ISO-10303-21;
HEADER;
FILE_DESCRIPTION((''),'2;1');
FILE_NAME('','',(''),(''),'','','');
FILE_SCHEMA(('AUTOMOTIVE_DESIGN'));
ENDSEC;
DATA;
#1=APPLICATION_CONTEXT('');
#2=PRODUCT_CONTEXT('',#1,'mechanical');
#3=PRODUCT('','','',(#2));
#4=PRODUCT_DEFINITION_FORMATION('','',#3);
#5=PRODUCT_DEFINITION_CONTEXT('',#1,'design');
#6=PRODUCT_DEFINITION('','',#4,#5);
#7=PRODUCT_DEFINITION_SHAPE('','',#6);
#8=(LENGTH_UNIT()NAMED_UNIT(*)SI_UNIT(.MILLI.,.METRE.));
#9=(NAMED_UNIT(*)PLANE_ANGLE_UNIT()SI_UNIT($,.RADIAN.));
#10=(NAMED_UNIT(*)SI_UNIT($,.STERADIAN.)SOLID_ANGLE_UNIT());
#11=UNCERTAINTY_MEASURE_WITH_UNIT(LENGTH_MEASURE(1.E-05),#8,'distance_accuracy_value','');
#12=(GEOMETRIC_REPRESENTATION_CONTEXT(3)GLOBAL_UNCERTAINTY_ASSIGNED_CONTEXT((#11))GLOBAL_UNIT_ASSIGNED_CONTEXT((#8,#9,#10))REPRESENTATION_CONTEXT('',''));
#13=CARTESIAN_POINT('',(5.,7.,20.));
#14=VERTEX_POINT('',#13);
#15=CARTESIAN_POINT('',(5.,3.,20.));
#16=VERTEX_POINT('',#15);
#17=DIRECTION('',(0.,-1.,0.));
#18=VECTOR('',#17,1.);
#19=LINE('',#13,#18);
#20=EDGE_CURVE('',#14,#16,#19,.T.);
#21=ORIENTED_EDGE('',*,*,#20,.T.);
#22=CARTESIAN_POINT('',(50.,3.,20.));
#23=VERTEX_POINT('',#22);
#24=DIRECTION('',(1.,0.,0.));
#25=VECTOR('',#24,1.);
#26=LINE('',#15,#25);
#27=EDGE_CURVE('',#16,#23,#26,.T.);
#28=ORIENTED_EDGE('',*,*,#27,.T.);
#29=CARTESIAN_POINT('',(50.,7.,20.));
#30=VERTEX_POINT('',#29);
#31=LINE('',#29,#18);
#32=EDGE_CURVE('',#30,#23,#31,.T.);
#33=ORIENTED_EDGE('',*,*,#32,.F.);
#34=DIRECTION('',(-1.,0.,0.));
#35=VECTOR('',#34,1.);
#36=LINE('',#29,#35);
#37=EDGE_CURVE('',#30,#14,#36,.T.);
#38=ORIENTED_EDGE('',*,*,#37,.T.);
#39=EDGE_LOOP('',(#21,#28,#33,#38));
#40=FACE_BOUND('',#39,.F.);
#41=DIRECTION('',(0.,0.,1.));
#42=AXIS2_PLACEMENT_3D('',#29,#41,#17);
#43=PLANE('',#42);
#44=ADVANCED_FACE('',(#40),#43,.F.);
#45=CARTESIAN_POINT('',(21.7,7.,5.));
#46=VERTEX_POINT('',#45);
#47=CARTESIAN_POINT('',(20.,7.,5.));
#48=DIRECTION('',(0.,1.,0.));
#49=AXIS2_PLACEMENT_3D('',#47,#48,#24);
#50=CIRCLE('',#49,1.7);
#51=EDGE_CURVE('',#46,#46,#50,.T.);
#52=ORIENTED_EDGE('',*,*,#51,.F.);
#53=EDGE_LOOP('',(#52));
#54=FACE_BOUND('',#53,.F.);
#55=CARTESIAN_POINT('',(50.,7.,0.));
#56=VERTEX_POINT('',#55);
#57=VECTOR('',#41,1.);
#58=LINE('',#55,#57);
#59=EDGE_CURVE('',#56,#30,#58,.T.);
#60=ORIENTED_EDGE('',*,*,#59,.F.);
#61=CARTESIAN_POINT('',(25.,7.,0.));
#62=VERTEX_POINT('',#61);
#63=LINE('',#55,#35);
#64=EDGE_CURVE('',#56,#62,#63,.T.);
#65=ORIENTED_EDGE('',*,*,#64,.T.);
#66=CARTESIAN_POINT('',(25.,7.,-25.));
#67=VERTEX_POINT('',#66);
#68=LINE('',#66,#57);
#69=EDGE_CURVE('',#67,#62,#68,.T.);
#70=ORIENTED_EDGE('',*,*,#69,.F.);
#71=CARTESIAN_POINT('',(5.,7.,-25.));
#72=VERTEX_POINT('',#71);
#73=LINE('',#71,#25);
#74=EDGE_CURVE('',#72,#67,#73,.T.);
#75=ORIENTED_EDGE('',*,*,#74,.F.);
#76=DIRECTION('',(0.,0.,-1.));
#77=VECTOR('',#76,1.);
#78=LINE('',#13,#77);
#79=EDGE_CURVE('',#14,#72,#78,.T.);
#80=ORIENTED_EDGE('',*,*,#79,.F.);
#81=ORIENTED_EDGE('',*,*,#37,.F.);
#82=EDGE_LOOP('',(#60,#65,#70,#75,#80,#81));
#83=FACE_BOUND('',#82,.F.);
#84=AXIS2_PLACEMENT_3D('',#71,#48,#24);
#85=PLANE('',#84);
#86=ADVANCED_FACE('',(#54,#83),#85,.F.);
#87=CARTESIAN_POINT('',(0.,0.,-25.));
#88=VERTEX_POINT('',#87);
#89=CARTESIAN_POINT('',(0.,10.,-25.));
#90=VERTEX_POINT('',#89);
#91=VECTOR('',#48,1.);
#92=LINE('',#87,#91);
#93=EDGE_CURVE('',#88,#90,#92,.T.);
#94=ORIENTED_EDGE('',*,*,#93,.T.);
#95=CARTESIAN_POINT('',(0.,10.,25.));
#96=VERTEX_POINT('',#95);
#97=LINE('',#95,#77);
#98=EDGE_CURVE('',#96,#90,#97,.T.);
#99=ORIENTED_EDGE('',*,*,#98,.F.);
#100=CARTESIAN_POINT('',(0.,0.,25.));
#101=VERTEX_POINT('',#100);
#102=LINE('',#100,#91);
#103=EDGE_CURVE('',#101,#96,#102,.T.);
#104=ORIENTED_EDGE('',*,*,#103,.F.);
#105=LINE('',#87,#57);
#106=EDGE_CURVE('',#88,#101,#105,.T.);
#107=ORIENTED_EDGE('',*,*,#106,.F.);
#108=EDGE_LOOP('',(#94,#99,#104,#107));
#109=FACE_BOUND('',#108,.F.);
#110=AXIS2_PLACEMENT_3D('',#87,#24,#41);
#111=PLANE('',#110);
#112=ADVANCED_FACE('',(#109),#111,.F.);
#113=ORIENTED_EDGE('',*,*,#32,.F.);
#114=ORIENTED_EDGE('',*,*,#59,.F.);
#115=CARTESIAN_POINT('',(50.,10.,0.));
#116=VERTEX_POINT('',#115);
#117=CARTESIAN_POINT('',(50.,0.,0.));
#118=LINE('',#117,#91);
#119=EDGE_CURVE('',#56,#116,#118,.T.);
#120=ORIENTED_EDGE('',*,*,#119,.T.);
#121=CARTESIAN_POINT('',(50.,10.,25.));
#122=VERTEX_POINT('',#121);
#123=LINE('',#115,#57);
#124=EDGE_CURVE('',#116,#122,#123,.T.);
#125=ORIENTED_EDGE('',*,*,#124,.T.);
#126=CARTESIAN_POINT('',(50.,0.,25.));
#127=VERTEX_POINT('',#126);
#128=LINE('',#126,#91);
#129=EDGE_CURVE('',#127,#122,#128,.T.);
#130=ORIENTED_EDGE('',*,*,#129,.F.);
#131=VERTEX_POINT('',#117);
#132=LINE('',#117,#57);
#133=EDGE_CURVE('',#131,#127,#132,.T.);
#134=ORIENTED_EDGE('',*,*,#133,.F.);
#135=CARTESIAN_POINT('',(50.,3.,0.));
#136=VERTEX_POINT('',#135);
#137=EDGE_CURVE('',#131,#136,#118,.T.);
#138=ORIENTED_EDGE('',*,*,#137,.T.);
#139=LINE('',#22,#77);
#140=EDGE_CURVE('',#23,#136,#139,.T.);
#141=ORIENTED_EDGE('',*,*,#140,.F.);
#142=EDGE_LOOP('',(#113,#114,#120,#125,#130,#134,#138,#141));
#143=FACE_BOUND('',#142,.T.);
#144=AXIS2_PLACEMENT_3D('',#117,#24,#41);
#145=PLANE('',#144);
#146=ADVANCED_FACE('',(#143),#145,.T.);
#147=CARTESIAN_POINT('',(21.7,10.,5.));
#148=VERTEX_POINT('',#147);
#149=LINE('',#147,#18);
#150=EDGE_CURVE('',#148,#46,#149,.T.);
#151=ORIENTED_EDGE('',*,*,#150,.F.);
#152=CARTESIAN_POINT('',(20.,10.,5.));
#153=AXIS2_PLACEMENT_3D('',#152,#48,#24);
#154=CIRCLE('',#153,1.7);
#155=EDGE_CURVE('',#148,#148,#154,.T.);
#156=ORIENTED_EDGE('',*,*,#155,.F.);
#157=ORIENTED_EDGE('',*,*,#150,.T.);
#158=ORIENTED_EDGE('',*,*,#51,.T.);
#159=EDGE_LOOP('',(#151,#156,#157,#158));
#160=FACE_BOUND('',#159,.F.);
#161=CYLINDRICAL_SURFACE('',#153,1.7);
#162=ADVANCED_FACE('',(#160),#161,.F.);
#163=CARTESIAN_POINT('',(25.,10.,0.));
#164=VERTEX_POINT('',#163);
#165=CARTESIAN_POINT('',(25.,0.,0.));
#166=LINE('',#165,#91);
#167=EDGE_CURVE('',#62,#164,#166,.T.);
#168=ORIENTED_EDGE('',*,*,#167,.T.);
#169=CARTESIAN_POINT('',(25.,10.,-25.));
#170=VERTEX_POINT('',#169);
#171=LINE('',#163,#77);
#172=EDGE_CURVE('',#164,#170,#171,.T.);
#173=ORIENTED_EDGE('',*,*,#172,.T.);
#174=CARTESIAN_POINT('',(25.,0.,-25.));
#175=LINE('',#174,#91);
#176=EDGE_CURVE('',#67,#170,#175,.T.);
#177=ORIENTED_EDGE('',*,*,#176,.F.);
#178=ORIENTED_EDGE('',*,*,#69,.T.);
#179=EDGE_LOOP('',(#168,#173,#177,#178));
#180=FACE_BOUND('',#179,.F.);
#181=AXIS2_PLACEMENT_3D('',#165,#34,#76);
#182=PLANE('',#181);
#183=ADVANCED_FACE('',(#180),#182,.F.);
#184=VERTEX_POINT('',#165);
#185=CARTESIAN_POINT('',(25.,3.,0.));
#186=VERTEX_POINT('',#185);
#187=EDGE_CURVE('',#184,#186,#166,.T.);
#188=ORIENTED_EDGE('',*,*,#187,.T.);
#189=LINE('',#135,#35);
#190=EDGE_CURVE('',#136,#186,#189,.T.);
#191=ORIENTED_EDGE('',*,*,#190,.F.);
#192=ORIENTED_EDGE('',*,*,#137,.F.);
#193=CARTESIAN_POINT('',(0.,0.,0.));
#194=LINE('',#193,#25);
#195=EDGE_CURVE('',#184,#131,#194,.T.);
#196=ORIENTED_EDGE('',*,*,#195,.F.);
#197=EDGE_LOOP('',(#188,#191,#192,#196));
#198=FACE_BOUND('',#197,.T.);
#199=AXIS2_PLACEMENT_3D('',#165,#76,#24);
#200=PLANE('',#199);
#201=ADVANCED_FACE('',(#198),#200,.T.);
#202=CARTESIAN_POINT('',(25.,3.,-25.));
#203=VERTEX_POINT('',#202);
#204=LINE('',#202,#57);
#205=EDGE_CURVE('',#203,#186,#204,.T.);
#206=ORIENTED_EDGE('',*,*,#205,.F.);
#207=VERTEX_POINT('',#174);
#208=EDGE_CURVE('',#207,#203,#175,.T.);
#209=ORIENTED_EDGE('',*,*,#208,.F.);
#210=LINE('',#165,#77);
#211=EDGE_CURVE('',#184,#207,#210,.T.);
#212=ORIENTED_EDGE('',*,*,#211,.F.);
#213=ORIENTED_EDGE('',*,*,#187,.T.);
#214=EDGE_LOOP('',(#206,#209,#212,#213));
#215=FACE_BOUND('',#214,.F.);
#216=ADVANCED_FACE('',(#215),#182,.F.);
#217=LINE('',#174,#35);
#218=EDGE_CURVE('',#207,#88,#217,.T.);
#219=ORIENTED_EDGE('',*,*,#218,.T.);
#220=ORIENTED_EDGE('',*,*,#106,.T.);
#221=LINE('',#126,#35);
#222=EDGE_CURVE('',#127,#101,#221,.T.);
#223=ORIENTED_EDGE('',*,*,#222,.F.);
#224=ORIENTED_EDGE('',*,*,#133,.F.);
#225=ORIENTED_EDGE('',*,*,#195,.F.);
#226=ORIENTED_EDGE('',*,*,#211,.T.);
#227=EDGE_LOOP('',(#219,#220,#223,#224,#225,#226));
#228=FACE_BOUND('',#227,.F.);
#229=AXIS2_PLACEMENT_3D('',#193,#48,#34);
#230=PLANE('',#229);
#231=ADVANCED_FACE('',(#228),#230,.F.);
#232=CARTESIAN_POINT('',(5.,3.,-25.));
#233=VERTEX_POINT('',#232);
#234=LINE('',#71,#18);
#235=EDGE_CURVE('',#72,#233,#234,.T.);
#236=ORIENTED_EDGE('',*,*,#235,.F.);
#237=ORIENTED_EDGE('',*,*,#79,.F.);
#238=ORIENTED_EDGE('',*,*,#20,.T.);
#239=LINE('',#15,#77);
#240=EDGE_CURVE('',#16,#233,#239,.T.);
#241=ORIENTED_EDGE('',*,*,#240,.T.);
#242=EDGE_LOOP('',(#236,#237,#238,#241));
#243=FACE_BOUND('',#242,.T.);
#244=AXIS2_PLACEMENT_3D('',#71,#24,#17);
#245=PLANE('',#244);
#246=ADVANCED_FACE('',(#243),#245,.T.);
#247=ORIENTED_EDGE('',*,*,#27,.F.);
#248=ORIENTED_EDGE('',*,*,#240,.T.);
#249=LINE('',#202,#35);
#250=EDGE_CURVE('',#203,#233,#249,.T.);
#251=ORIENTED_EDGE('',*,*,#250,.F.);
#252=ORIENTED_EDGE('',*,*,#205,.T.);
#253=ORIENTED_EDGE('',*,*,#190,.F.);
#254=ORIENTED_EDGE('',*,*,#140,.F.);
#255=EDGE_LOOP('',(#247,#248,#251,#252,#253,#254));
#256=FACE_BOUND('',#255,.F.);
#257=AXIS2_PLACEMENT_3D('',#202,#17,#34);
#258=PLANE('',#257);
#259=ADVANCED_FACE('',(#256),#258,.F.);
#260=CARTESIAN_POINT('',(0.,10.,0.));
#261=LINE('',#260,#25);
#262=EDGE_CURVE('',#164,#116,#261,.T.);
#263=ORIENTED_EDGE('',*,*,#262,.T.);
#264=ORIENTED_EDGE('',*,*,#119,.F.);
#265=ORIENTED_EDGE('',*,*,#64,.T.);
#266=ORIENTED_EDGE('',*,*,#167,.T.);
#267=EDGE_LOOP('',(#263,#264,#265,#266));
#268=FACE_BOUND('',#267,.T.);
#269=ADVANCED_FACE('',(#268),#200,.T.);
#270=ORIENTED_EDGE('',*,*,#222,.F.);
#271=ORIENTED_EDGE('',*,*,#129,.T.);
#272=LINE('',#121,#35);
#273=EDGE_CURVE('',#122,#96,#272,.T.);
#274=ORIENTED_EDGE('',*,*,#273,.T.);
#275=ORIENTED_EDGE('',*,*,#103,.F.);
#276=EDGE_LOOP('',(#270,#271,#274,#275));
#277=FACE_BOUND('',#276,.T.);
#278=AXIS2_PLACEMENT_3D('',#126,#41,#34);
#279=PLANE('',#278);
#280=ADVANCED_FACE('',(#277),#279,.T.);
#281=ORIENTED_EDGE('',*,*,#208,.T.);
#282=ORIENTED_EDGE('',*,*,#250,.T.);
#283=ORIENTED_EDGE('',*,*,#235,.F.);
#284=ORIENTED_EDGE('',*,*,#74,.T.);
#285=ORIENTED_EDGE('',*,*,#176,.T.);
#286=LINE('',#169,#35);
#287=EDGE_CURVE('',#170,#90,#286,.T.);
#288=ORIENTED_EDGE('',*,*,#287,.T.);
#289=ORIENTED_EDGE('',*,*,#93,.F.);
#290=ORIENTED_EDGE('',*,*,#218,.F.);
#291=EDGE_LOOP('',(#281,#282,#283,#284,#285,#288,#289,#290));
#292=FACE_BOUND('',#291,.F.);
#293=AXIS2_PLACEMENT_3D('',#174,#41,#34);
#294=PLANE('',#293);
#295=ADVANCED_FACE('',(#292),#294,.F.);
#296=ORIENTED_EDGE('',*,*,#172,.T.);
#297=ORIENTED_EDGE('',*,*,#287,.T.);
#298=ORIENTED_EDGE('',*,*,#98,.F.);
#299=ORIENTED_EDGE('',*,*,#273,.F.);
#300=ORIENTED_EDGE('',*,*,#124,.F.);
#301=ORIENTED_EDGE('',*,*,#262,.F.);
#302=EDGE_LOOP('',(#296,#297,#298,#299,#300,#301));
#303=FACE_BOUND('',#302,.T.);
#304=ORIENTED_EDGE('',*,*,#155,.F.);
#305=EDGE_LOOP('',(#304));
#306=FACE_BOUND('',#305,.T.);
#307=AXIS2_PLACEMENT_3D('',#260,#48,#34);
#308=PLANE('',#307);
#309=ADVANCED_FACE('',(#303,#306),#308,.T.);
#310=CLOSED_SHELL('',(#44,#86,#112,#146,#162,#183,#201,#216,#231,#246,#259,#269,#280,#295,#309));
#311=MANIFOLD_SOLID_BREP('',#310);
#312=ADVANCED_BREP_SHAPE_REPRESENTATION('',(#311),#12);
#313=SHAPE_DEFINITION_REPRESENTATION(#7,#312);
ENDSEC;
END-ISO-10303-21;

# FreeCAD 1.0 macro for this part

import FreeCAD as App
import Part
import Sketcher
from FreeCAD import Vector

doc = App.newDocument("Part")
params = doc.addObject("Spreadsheet::Sheet", "Params")
for row, (alias, value) in enumerate([
    ("sketch1_width", "50 mm"),
    ("pad1_length", "10 mm"),
    ("sketch2_height", "20 mm"),
    ("sketch2_width", "4 mm"),
    ("pocket1_length", "45 mm"),
    ("sketch3_width", "20 mm"),
    ("sketch3_height", "4 mm"),
    ("pocket2_length", "45 mm"),
    ("sketch4_diameter", "3.4 mm"),
    ("pocket3_length", "3 mm"),
], start=1):
    params.set(f"A{row}", alias)
    params.set(f"B{row}", "=" + value)
    params.setAlias(f"B{row}", alias)

body = doc.addObject("PartDesign::Body", "Body")

# Sketch on XZ plane
sketch1 = body.newObject("Sketcher::SketchObject", "Sketch")
sketch1.AttachmentSupport = (doc.getObject("XZ_Plane"), [""])
sketch1.MapMode = "FlatFace"
sketch1.addGeometry(Part.LineSegment(Vector(0, -25, 0), Vector(0, 25, 0)), False)
sketch1.addGeometry(Part.LineSegment(Vector(0, 25, 0), Vector(50, 25, 0)), False)
sketch1.addGeometry(Part.LineSegment(Vector(50, 25, 0), Vector(50, 0, 0)), False)
sketch1.addGeometry(Part.LineSegment(Vector(50, 0, 0), Vector(25, 0, 0)), False)
sketch1.addGeometry(Part.LineSegment(Vector(25, 0, 0), Vector(25, -25, 0)), False)
sketch1.addGeometry(Part.LineSegment(Vector(25, -25, 0), Vector(0, -25, 0)), False)
sketch1.addConstraint(Sketcher.Constraint("Coincident", 0, 2, 1, 1))
sketch1.addConstraint(Sketcher.Constraint("Coincident", 1, 2, 2, 1))
sketch1.addConstraint(Sketcher.Constraint("Coincident", 2, 2, 3, 1))
sketch1.addConstraint(Sketcher.Constraint("Coincident", 3, 2, 4, 1))
sketch1.addConstraint(Sketcher.Constraint("Coincident", 4, 2, 5, 1))
sketch1.addConstraint(Sketcher.Constraint("Coincident", 5, 2, 0, 1))
sketch1.addConstraint(Sketcher.Constraint("Vertical", 0))
sketch1.addConstraint(Sketcher.Constraint("Horizontal", 1))
sketch1.addConstraint(Sketcher.Constraint("Vertical", 2))
sketch1.addConstraint(Sketcher.Constraint("Horizontal", 3))
sketch1.addConstraint(Sketcher.Constraint("Vertical", 4))
sketch1.addConstraint(Sketcher.Constraint("Horizontal", 5))
sketch1.addConstraint(Sketcher.Constraint("Symmetric", 0, 2, 5, 2, -1, 1))
sketch1.addConstraint(Sketcher.Constraint("PointOnObject", 2, 2, -1))
sketch1.addConstraint(Sketcher.Constraint("Equal", 3, 5))
sketch1.addConstraint(Sketcher.Constraint("Equal", 1, 0))
sketch1.addConstraint(Sketcher.Constraint("DistanceX", 1, 1, 1, 2, 50.0))
sketch1.setExpression("Constraints[16]", "Params.sketch1_width")
pad1 = body.newObject("PartDesign::Pad", "Pad")
pad1.Profile = sketch1
pad1.setExpression("Length", "Params.pad1_length")
pad1.Reversed = True

# Sketch on YZ plane
sketch2 = body.newObject("Sketcher::SketchObject", "Sketch001")
sketch2.AttachmentSupport = (doc.getObject("YZ_Plane"), [""])
sketch2.MapMode = "FlatFace"
sketch2.AttachmentOffset = App.Placement(Vector(0, 0, 50), App.Rotation())
sketch2.addGeometry(Part.LineSegment(Vector(3, 20, 0), Vector(3, 0, 0)), False)
sketch2.addGeometry(Part.LineSegment(Vector(3, 0, 0), Vector(7, 0, 0)), False)
sketch2.addGeometry(Part.LineSegment(Vector(7, 0, 0), Vector(7, 20, 0)), False)
sketch2.addGeometry(Part.LineSegment(Vector(7, 20, 0), Vector(3, 20, 0)), False)
sketch2.addConstraint(Sketcher.Constraint("Coincident", 0, 2, 1, 1))
sketch2.addConstraint(Sketcher.Constraint("Coincident", 1, 2, 2, 1))
sketch2.addConstraint(Sketcher.Constraint("Coincident", 2, 2, 3, 1))
sketch2.addConstraint(Sketcher.Constraint("Coincident", 3, 2, 0, 1))
sketch2.addConstraint(Sketcher.Constraint("Vertical", 0))
sketch2.addConstraint(Sketcher.Constraint("Horizontal", 1))
sketch2.addConstraint(Sketcher.Constraint("Vertical", 2))
sketch2.addConstraint(Sketcher.Constraint("Horizontal", 3))
sketch2.addConstraint(Sketcher.Constraint("PointOnObject", 0, 2, -1))
sketch2.addConstraint(Sketcher.Constraint("DistanceY", 0, 2, 0, 1, 20.0))
sketch2.addConstraint(Sketcher.Constraint("DistanceX", -1, 1, 0, 2, 3.0))
sketch2.addConstraint(Sketcher.Constraint("DistanceX", 1, 1, 1, 2, 4.0))
sketch2.setExpression("Constraints[9]", "Params.sketch2_height")
sketch2.setExpression("Constraints[11]", "Params.sketch2_width")
pocket1 = body.newObject("PartDesign::Pocket", "Pocket")
pocket1.Profile = sketch2
pocket1.setExpression("Length", "Params.pocket1_length")

# Sketch on XY plane
sketch3 = body.newObject("Sketcher::SketchObject", "Sketch002")
sketch3.AttachmentSupport = (doc.getObject("XY_Plane"), [""])
sketch3.MapMode = "FlatFace"
sketch3.AttachmentOffset = App.Placement(Vector(0, 0, -25), App.Rotation())
sketch3.addGeometry(Part.LineSegment(Vector(25, 7, 0), Vector(25, 3, 0)), False)
sketch3.addGeometry(Part.LineSegment(Vector(25, 3, 0), Vector(5, 3, 0)), False)
sketch3.addGeometry(Part.LineSegment(Vector(5, 3, 0), Vector(5, 7, 0)), False)
sketch3.addGeometry(Part.LineSegment(Vector(5, 7, 0), Vector(25, 7, 0)), False)
sketch3.addConstraint(Sketcher.Constraint("Coincident", 0, 2, 1, 1))
sketch3.addConstraint(Sketcher.Constraint("Coincident", 1, 2, 2, 1))
sketch3.addConstraint(Sketcher.Constraint("Coincident", 2, 2, 3, 1))
sketch3.addConstraint(Sketcher.Constraint("Coincident", 3, 2, 0, 1))
sketch3.addConstraint(Sketcher.Constraint("Vertical", 0))
sketch3.addConstraint(Sketcher.Constraint("Horizontal", 1))
sketch3.addConstraint(Sketcher.Constraint("Vertical", 2))
sketch3.addConstraint(Sketcher.Constraint("Horizontal", 3))
sketch3.addConstraint(Sketcher.Constraint("DistanceX", 1, 2, 1, 1, 20.0))
sketch3.addConstraint(Sketcher.Constraint("DistanceY", 0, 2, 0, 1, 4.0))
sketch3.addConstraint(Sketcher.Constraint("DistanceX", -1, 1, 0, 2, 25.0))
sketch3.addConstraint(Sketcher.Constraint("DistanceY", -1, 1, 0, 2, 3.0))
sketch3.setExpression("Constraints[8]", "Params.sketch3_width")
sketch3.setExpression("Constraints[9]", "Params.sketch3_height")
pocket2 = body.newObject("PartDesign::Pocket", "Pocket001")
pocket2.Profile = sketch3
pocket2.setExpression("Length", "Params.pocket2_length")
pocket2.Reversed = True

# Sketch on XZ plane
sketch4 = body.newObject("Sketcher::SketchObject", "Sketch003")
sketch4.AttachmentSupport = (doc.getObject("XZ_Plane"), [""])
sketch4.MapMode = "FlatFace"
sketch4.AttachmentOffset = App.Placement(Vector(0, 0, -10), App.Rotation())
sketch4.addGeometry(Part.Circle(Vector(20, 5, 0), Vector(0, 0, 1), 1.7), False)
sketch4.addConstraint(Sketcher.Constraint("Diameter", 0, 3.4))
sketch4.addConstraint(Sketcher.Constraint("DistanceX", -1, 1, 0, 3, 20.0))
sketch4.addConstraint(Sketcher.Constraint("DistanceY", -1, 1, 0, 3, 5.0))
sketch4.setExpression("Constraints[0]", "Params.sketch4_diameter")
pocket3 = body.newObject("PartDesign::Pocket", "Pocket002")
pocket3.Profile = sketch4
pocket3.setExpression("Length", "Params.pocket3_length")
pocket3.Reversed = True

doc.recompute()
